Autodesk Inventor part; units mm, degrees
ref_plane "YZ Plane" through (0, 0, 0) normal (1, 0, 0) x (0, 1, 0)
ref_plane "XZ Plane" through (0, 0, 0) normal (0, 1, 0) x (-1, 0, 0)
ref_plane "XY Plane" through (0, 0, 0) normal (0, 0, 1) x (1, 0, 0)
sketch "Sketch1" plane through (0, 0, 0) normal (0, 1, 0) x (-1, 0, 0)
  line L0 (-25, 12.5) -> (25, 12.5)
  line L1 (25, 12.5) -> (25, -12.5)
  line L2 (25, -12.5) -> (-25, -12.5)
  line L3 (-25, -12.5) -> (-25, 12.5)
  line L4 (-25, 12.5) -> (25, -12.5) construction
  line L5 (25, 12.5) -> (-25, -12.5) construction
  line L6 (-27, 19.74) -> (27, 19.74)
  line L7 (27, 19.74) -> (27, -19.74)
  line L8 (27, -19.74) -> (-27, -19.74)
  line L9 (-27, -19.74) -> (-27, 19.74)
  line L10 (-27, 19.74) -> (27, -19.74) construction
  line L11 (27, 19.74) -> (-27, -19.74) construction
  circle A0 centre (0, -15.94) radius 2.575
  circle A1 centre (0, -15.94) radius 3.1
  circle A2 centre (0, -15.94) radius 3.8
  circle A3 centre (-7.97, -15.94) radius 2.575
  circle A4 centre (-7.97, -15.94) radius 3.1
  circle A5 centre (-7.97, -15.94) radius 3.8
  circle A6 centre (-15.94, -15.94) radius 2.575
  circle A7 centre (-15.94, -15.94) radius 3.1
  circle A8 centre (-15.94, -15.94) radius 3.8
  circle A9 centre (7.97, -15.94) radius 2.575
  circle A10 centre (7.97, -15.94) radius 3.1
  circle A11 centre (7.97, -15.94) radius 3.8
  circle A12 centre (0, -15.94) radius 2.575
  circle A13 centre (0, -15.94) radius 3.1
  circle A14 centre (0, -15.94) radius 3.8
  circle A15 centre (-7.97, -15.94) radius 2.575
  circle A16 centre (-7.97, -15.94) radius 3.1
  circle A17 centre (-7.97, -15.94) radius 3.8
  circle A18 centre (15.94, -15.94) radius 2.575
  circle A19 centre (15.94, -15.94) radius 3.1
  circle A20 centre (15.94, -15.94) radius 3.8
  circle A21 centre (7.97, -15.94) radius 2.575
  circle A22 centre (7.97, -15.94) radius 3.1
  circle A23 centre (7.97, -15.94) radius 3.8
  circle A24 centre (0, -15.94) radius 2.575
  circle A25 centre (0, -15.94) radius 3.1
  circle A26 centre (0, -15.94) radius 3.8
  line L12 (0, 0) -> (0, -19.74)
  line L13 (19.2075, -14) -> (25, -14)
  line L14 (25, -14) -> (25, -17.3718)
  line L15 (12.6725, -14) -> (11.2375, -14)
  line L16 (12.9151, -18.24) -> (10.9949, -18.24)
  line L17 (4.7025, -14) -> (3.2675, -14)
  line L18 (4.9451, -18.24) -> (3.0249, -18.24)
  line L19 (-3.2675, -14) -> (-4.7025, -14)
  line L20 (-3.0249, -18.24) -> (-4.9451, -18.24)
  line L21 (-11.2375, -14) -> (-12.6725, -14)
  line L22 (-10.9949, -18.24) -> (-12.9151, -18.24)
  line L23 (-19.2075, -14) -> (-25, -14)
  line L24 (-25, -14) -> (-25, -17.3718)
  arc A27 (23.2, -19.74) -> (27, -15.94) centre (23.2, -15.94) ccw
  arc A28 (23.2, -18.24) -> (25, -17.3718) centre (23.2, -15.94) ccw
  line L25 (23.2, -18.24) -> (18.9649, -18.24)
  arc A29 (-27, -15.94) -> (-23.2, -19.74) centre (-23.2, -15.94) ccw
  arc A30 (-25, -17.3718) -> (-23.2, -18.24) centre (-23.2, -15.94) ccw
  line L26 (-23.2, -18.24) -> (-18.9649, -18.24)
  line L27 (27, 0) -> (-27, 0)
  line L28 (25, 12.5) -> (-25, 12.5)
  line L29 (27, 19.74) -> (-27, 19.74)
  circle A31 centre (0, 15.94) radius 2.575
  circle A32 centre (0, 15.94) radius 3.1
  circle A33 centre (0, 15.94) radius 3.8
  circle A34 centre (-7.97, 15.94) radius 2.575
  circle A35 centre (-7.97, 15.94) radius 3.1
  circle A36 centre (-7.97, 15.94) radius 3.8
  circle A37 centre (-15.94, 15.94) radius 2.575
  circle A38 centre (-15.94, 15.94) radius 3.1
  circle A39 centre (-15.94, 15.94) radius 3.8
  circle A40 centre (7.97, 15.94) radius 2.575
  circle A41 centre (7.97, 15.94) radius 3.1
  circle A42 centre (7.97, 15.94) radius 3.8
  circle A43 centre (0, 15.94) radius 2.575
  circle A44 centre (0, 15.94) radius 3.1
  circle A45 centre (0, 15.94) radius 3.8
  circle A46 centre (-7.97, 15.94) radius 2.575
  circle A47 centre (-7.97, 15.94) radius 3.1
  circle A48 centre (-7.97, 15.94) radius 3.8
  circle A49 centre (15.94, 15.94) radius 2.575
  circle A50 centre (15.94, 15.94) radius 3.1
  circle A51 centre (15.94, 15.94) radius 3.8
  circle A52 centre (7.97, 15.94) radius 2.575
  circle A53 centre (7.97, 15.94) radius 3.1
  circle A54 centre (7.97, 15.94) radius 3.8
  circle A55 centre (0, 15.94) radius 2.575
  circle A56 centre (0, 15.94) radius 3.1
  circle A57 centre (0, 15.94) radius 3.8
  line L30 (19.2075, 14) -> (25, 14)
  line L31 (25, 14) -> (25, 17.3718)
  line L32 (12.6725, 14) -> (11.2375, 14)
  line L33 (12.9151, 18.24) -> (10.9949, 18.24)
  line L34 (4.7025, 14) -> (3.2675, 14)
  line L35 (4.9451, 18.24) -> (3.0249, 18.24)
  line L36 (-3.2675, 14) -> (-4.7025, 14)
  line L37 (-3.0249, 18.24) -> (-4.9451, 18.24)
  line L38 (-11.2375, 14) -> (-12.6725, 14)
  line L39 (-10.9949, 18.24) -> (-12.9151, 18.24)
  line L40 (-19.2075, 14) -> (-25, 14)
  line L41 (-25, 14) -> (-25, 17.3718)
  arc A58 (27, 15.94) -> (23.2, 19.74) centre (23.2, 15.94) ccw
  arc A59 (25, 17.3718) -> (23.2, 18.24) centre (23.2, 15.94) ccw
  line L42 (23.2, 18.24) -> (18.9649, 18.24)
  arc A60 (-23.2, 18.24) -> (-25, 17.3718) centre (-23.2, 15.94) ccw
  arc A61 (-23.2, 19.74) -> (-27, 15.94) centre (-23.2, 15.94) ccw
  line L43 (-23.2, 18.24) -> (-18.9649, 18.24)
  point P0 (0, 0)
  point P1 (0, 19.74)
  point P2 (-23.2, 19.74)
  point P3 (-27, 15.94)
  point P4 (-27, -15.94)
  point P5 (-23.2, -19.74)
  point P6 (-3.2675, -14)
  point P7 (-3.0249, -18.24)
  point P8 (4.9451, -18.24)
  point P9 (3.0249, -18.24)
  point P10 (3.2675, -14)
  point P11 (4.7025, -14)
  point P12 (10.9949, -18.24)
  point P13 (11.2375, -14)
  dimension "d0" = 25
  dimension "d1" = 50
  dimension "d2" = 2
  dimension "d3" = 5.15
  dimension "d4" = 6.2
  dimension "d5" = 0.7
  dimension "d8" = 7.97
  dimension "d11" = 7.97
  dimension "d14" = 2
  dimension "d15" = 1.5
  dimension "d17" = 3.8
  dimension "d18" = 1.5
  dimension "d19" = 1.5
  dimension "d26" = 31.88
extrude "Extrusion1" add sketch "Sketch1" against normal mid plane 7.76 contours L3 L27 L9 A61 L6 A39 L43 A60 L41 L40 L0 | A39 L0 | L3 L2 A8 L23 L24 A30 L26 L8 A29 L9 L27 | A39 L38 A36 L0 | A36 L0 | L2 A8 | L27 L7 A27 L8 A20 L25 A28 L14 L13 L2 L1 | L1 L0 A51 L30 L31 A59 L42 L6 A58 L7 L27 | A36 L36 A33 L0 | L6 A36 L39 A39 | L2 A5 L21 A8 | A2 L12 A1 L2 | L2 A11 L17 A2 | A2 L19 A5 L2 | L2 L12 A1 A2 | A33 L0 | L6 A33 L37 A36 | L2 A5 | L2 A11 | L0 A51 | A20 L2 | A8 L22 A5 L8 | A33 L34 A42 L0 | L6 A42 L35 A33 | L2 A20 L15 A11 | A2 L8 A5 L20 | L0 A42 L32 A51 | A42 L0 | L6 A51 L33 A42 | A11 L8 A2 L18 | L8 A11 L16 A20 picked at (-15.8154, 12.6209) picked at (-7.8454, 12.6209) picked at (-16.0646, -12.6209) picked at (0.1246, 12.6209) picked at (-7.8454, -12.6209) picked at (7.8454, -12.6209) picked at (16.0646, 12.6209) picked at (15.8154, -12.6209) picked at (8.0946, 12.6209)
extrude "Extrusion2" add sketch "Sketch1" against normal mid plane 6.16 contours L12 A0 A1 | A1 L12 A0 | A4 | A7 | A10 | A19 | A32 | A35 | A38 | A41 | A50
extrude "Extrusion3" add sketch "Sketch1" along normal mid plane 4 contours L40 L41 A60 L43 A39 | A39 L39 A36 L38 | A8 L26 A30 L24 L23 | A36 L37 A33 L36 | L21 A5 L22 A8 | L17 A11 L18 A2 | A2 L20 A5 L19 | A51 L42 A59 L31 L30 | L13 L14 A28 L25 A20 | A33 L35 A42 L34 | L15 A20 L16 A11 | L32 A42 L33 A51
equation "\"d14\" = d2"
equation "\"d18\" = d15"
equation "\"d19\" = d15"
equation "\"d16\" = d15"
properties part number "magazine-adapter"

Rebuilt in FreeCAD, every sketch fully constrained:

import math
import FreeCAD as App
import Part
import Sketcher

V = App.Vector
Q = App.Units.Quantity


def add_polygon(sketch, points):
    """Adds a closed chain of lines whose ends are joined by coincident constraints."""
    first, n = sketch.GeometryCount, len(points)
    for a, b in zip(points, points[1:] + points[:1]):
        sketch.addGeometry(Part.LineSegment(App.Vector(*a, 0), App.Vector(*b, 0)), False)
    for i in range(n):
        sketch.addConstraint(Sketcher.Constraint("Coincident", first + i, 2, first + (i + 1) % n, 1))

doc = App.newDocument("Part")
body = doc.addObject("PartDesign::Body", "Body")

# Sketch on XZ plane
sketch1 = body.newObject("Sketcher::SketchObject", "Sketch")
sketch1.AttachmentSupport = (doc.getObject("XZ_Plane"), [""])
sketch1.MapMode = "FlatFace"
sketch1.addGeometry(Part.LineSegment(V(27, 15.9, 0), V(27, -15.9, 0)), False)  # 0
sketch1.addGeometry(Part.ArcOfCircle(Part.Circle(V(23.2, -15.9, 0), V(0, 0, 1), 3.8), math.radians(-90), math.radians(0)), False)  # 1
sketch1.addGeometry(Part.LineSegment(V(23.2, -19.7, 0), V(-23.2, -19.7, 0)), False)  # 2
sketch1.addGeometry(Part.ArcOfCircle(Part.Circle(V(-23.2, -15.9, 0), V(0, 0, 1), 3.8), math.radians(180), math.radians(270)), False)  # 3
sketch1.addGeometry(Part.LineSegment(V(-27, -15.9, 0), V(-27, 15.9, 0)), False)  # 4
sketch1.addGeometry(Part.ArcOfCircle(Part.Circle(V(-23.2, 15.9, 0), V(0, 0, 1), 3.8), math.radians(90), math.radians(180)), False)  # 5
sketch1.addGeometry(Part.LineSegment(V(-23.2, 19.7, 0), V(23.2, 19.7, 0)), False)  # 6
sketch1.addGeometry(Part.ArcOfCircle(Part.Circle(V(23.2, 15.9, 0), V(0, 0, 1), 3.8), math.radians(0), math.radians(90)), False)  # 7
add_polygon(sketch1, [(25, 12.5), (-25, 12.5), (-25, -12.5), (25, -12.5)])  # lines 8-11
sketch1.addGeometry(Part.LineSegment(V(23.2, 18.2, 0), V(19, 18.2, 0)), False)  # 12
sketch1.addGeometry(Part.ArcOfCircle(Part.Circle(V(15.9, 15.9, 0), V(0, 0, 1), 3.8), math.radians(-31), math.radians(37)), False)  # 13
sketch1.addGeometry(Part.LineSegment(V(19.2, 14, 0), V(25, 14, 0)), False)  # 14
sketch1.addGeometry(Part.LineSegment(V(25, 14, 0), V(25, 17.4, 0)), False)  # 15
sketch1.addGeometry(Part.ArcOfCircle(Part.Circle(V(23.2, 15.9, 0), V(0, 0, 1), 2.3), math.radians(39), math.radians(90)), False)  # 16
sketch1.addGeometry(Part.LineSegment(V(25, -14, 0), V(19.2, -14, 0)), False)  # 17
sketch1.addGeometry(Part.ArcOfCircle(Part.Circle(V(15.9, -15.9, 0), V(0, 0, 1), 3.8), math.radians(-37), math.radians(31)), False)  # 18
sketch1.addGeometry(Part.LineSegment(V(19, -18.2, 0), V(23.2, -18.2, 0)), False)  # 19
sketch1.addGeometry(Part.ArcOfCircle(Part.Circle(V(23.2, -15.9, 0), V(0, 0, 1), 2.3), math.radians(-90), math.radians(-39)), False)  # 20
sketch1.addGeometry(Part.LineSegment(V(25, -17.4, 0), V(25, -14, 0)), False)  # 21
sketch1.addGeometry(Part.Circle(V(15.9, 15.9, 0), V(0, 0, 1), 3.1), False)  # 22
sketch1.addGeometry(Part.LineSegment(V(12.9, 18.2, 0), V(11, 18.2, 0)), False)  # 23
sketch1.addGeometry(Part.ArcOfCircle(Part.Circle(V(8, 15.9, 0), V(0, 0, 1), 3.8), math.radians(-31), math.radians(37)), False)  # 24
sketch1.addGeometry(Part.LineSegment(V(11.2, 14, 0), V(12.7, 14, 0)), False)  # 25
sketch1.addGeometry(Part.ArcOfCircle(Part.Circle(V(15.9, 15.9, 0), V(0, 0, 1), 3.8), math.radians(143), math.radians(211)), False)  # 26
sketch1.addGeometry(Part.LineSegment(V(12.7, -14, 0), V(11.2, -14, 0)), False)  # 27
sketch1.addGeometry(Part.ArcOfCircle(Part.Circle(V(8, -15.9, 0), V(0, 0, 1), 3.8), math.radians(-37), math.radians(31)), False)  # 28
sketch1.addGeometry(Part.LineSegment(V(11, -18.2, 0), V(12.9, -18.2, 0)), False)  # 29
sketch1.addGeometry(Part.ArcOfCircle(Part.Circle(V(15.9, -15.9, 0), V(0, 0, 1), 3.8), math.radians(149), math.radians(217)), False)  # 30
sketch1.addGeometry(Part.Circle(V(15.9, -15.9, 0), V(0, 0, 1), 3.1), False)  # 31
sketch1.addGeometry(Part.Circle(V(8, 15.9, 0), V(0, 0, 1), 3.1), False)  # 32
sketch1.addGeometry(Part.LineSegment(V(4.9, 18.2, 0), V(3, 18.2, 0)), False)  # 33
sketch1.addGeometry(Part.ArcOfCircle(Part.Circle(V(0, 15.9, 0), V(0, 0, 1), 3.8), math.radians(-31), math.radians(37)), False)  # 34
sketch1.addGeometry(Part.LineSegment(V(3.3, 14, 0), V(4.7, 14, 0)), False)  # 35
sketch1.addGeometry(Part.ArcOfCircle(Part.Circle(V(8, 15.9, 0), V(0, 0, 1), 3.8), math.radians(143), math.radians(211)), False)  # 36
sketch1.addGeometry(Part.LineSegment(V(4.7, -14, 0), V(3.3, -14, 0)), False)  # 37
sketch1.addGeometry(Part.ArcOfCircle(Part.Circle(V(0, -15.9, 0), V(0, 0, 1), 3.8), math.radians(-37), math.radians(31)), False)  # 38
sketch1.addGeometry(Part.LineSegment(V(3, -18.2, 0), V(4.9, -18.2, 0)), False)  # 39
sketch1.addGeometry(Part.ArcOfCircle(Part.Circle(V(8, -15.9, 0), V(0, 0, 1), 3.8), math.radians(149), math.radians(217)), False)  # 40
sketch1.addGeometry(Part.Circle(V(8, -15.9, 0), V(0, 0, 1), 3.1), False)  # 41
sketch1.addGeometry(Part.Circle(V(0, 15.9, 0), V(0, 0, 1), 3.1), False)  # 42
sketch1.addGeometry(Part.LineSegment(V(-3, 18.2, 0), V(-4.9, 18.2, 0)), False)  # 43
sketch1.addGeometry(Part.ArcOfCircle(Part.Circle(V(-8, 15.9, 0), V(0, 0, 1), 3.8), math.radians(-31), math.radians(37)), False)  # 44
sketch1.addGeometry(Part.LineSegment(V(-4.7, 14, 0), V(-3.3, 14, 0)), False)  # 45
sketch1.addGeometry(Part.ArcOfCircle(Part.Circle(V(0, 15.9, 0), V(0, 0, 1), 3.8), math.radians(143), math.radians(211)), False)  # 46
sketch1.addGeometry(Part.Circle(V(0, -15.9, 0), V(0, 0, 1), 3.1), False)  # 47
sketch1.addGeometry(Part.LineSegment(V(-3.3, -14, 0), V(-4.7, -14, 0)), False)  # 48
sketch1.addGeometry(Part.ArcOfCircle(Part.Circle(V(-8, -15.9, 0), V(0, 0, 1), 3.8), math.radians(-37), math.radians(31)), False)  # 49
sketch1.addGeometry(Part.LineSegment(V(-4.9, -18.2, 0), V(-3, -18.2, 0)), False)  # 50
sketch1.addGeometry(Part.ArcOfCircle(Part.Circle(V(0, -15.9, 0), V(0, 0, 1), 3.8), math.radians(149), math.radians(217)), False)  # 51
sketch1.addGeometry(Part.Circle(V(-8, 15.9, 0), V(0, 0, 1), 3.1), False)  # 52
sketch1.addGeometry(Part.LineSegment(V(-11, 18.2, 0), V(-12.9, 18.2, 0)), False)  # 53
sketch1.addGeometry(Part.ArcOfCircle(Part.Circle(V(-15.9, 15.9, 0), V(0, 0, 1), 3.8), math.radians(-31), math.radians(37)), False)  # 54
sketch1.addGeometry(Part.LineSegment(V(-12.7, 14, 0), V(-11.2, 14, 0)), False)  # 55
sketch1.addGeometry(Part.ArcOfCircle(Part.Circle(V(-8, 15.9, 0), V(0, 0, 1), 3.8), math.radians(143), math.radians(211)), False)  # 56
sketch1.addGeometry(Part.LineSegment(V(-11.2, -14, 0), V(-12.7, -14, 0)), False)  # 57
sketch1.addGeometry(Part.ArcOfCircle(Part.Circle(V(-15.9, -15.9, 0), V(0, 0, 1), 3.8), math.radians(-37), math.radians(31)), False)  # 58
sketch1.addGeometry(Part.LineSegment(V(-12.9, -18.2, 0), V(-11, -18.2, 0)), False)  # 59
sketch1.addGeometry(Part.ArcOfCircle(Part.Circle(V(-8, -15.9, 0), V(0, 0, 1), 3.8), math.radians(149), math.radians(217)), False)  # 60
sketch1.addGeometry(Part.Circle(V(-8, -15.9, 0), V(0, 0, 1), 3.1), False)  # 61
sketch1.addGeometry(Part.Circle(V(-15.9, 15.9, 0), V(0, 0, 1), 3.1), False)  # 62
sketch1.addGeometry(Part.LineSegment(V(-19, 18.2, 0), V(-23.2, 18.2, 0)), False)  # 63
sketch1.addGeometry(Part.ArcOfCircle(Part.Circle(V(-23.2, 15.9, 0), V(0, 0, 1), 2.3), math.radians(90), math.radians(141)), False)  # 64
sketch1.addGeometry(Part.LineSegment(V(-25, 17.4, 0), V(-25, 14, 0)), False)  # 65
sketch1.addGeometry(Part.LineSegment(V(-25, 14, 0), V(-19.2, 14, 0)), False)  # 66
sketch1.addGeometry(Part.ArcOfCircle(Part.Circle(V(-15.9, 15.9, 0), V(0, 0, 1), 3.8), math.radians(143), math.radians(211)), False)  # 67
sketch1.addGeometry(Part.LineSegment(V(-19.2, -14, 0), V(-25, -14, 0)), False)  # 68
sketch1.addGeometry(Part.LineSegment(V(-25, -14, 0), V(-25, -17.4, 0)), False)  # 69
sketch1.addGeometry(Part.ArcOfCircle(Part.Circle(V(-23.2, -15.9, 0), V(0, 0, 1), 2.3), math.radians(-141), math.radians(-90)), False)  # 70
sketch1.addGeometry(Part.LineSegment(V(-23.2, -18.2, 0), V(-19, -18.2, 0)), False)  # 71
sketch1.addGeometry(Part.ArcOfCircle(Part.Circle(V(-15.9, -15.9, 0), V(0, 0, 1), 3.8), math.radians(149), math.radians(217)), False)  # 72
sketch1.addGeometry(Part.Circle(V(-15.9, -15.9, 0), V(0, 0, 1), 3.1), False)  # 73
sketch1.addConstraint([
    Sketcher.Constraint("Tangent", 0, 2, 1, 2),
    Sketcher.Constraint("Tangent", 1, 1, 2, 1),
    Sketcher.Constraint("Tangent", 2, 2, 3, 2),
    Sketcher.Constraint("Tangent", 3, 1, 4, 1),
    Sketcher.Constraint("Tangent", 4, 2, 5, 2),
    Sketcher.Constraint("Tangent", 5, 1, 6, 1),
    Sketcher.Constraint("Tangent", 6, 2, 7, 2),
    Sketcher.Constraint("Tangent", 7, 1, 0, 1),
    Sketcher.Constraint("Coincident", 12, 2, 13, 2),
    Sketcher.Constraint("Coincident", 13, 1, 14, 1),
    Sketcher.Constraint("Coincident", 14, 2, 15, 1),
    Sketcher.Constraint("Coincident", 15, 2, 16, 1),
    Sketcher.Constraint("Tangent", 16, 2, 12, 1),
    Sketcher.Constraint("Coincident", 17, 2, 18, 2),
    Sketcher.Constraint("Coincident", 18, 1, 19, 1),
    Sketcher.Constraint("Tangent", 19, 2, 20, 1),
    Sketcher.Constraint("Coincident", 20, 2, 21, 1),
    Sketcher.Constraint("Coincident", 21, 2, 17, 1),
    Sketcher.Constraint("Coincident", 23, 2, 24, 2),
    Sketcher.Constraint("Coincident", 24, 1, 25, 1),
    Sketcher.Constraint("Coincident", 25, 2, 26, 2),
    Sketcher.Constraint("Coincident", 26, 1, 23, 1),
    Sketcher.Constraint("Coincident", 27, 2, 28, 2),
    Sketcher.Constraint("Coincident", 28, 1, 29, 1),
    Sketcher.Constraint("Coincident", 29, 2, 30, 2),
    Sketcher.Constraint("Coincident", 30, 1, 27, 1),
    Sketcher.Constraint("Coincident", 33, 2, 34, 2),
    Sketcher.Constraint("Coincident", 34, 1, 35, 1),
    Sketcher.Constraint("Coincident", 35, 2, 36, 2),
    Sketcher.Constraint("Coincident", 36, 1, 33, 1),
    Sketcher.Constraint("Coincident", 37, 2, 38, 2),
    Sketcher.Constraint("Coincident", 38, 1, 39, 1),
    Sketcher.Constraint("Coincident", 39, 2, 40, 2),
    Sketcher.Constraint("Coincident", 40, 1, 37, 1),
    Sketcher.Constraint("Coincident", 43, 2, 44, 2),
    Sketcher.Constraint("Coincident", 44, 1, 45, 1),
    Sketcher.Constraint("Coincident", 45, 2, 46, 2),
    Sketcher.Constraint("Coincident", 46, 1, 43, 1),
    Sketcher.Constraint("Coincident", 48, 2, 49, 2),
    Sketcher.Constraint("Coincident", 49, 1, 50, 1),
    Sketcher.Constraint("Coincident", 50, 2, 51, 2),
    Sketcher.Constraint("Coincident", 51, 1, 48, 1),
    Sketcher.Constraint("Coincident", 53, 2, 54, 2),
    Sketcher.Constraint("Coincident", 54, 1, 55, 1),
    Sketcher.Constraint("Coincident", 55, 2, 56, 2),
    Sketcher.Constraint("Coincident", 56, 1, 53, 1),
    Sketcher.Constraint("Coincident", 57, 2, 58, 2),
    Sketcher.Constraint("Coincident", 58, 1, 59, 1),
    Sketcher.Constraint("Coincident", 59, 2, 60, 2),
    Sketcher.Constraint("Coincident", 60, 1, 57, 1),
    Sketcher.Constraint("Tangent", 63, 2, 64, 1),
    Sketcher.Constraint("Coincident", 64, 2, 65, 1),
    Sketcher.Constraint("Coincident", 65, 2, 66, 1),
    Sketcher.Constraint("Coincident", 66, 2, 67, 2),
    Sketcher.Constraint("Coincident", 67, 1, 63, 1),
    Sketcher.Constraint("Coincident", 68, 2, 69, 1),
    Sketcher.Constraint("Coincident", 69, 2, 70, 1),
    Sketcher.Constraint("Tangent", 70, 2, 71, 1),
    Sketcher.Constraint("Coincident", 71, 2, 72, 2),
    Sketcher.Constraint("Coincident", 72, 1, 68, 1),
    Sketcher.Constraint("Vertical", 0),
    Sketcher.Constraint("Horizontal", 2),
    Sketcher.Constraint("Vertical", 4),
    Sketcher.Constraint("Horizontal", 6),
    Sketcher.Constraint("Horizontal", 8),
    Sketcher.Constraint("Vertical", 9),
    Sketcher.Constraint("Horizontal", 10),
    Sketcher.Constraint("Vertical", 11),
    Sketcher.Constraint("Horizontal", 12),
    Sketcher.Constraint("Horizontal", 14),
    Sketcher.Constraint("Vertical", 15),
    Sketcher.Constraint("Horizontal", 17),
    Sketcher.Constraint("Horizontal", 19),
    Sketcher.Constraint("Vertical", 21),
    Sketcher.Constraint("Horizontal", 23),
    Sketcher.Constraint("Horizontal", 25),
    Sketcher.Constraint("Horizontal", 27),
    Sketcher.Constraint("Horizontal", 29),
    Sketcher.Constraint("Horizontal", 33),
    Sketcher.Constraint("Horizontal", 35),
    Sketcher.Constraint("Horizontal", 37),
    Sketcher.Constraint("Horizontal", 39),
    Sketcher.Constraint("Horizontal", 43),
    Sketcher.Constraint("Horizontal", 45),
    Sketcher.Constraint("Horizontal", 48),
    Sketcher.Constraint("Horizontal", 50),
    Sketcher.Constraint("Horizontal", 53),
    Sketcher.Constraint("Horizontal", 55),
    Sketcher.Constraint("Horizontal", 57),
    Sketcher.Constraint("Horizontal", 59),
    Sketcher.Constraint("Horizontal", 63),
    Sketcher.Constraint("Vertical", 65),
    Sketcher.Constraint("Horizontal", 66),
    Sketcher.Constraint("Horizontal", 68),
    Sketcher.Constraint("Vertical", 69),
    Sketcher.Constraint("Horizontal", 71),
    Sketcher.Constraint("Coincident", 16, 3, 7, 3),
    Sketcher.Constraint("Coincident", 20, 3, 1, 3),
    Sketcher.Constraint("Coincident", 22, 3, 13, 3),
    Sketcher.Constraint("Coincident", 26, 3, 13, 3),
    Sketcher.Constraint("Coincident", 30, 3, 18, 3),
    Sketcher.Constraint("Coincident", 31, 3, 18, 3),
    Sketcher.Constraint("Coincident", 32, 3, 24, 3),
    Sketcher.Constraint("Coincident", 36, 3, 24, 3),
    Sketcher.Constraint("Coincident", 40, 3, 28, 3),
    Sketcher.Constraint("Coincident", 41, 3, 28, 3),
    Sketcher.Constraint("Coincident", 42, 3, 34, 3),
    Sketcher.Constraint("Coincident", 46, 3, 34, 3),
    Sketcher.Constraint("Coincident", 47, 3, 38, 3),
    Sketcher.Constraint("Coincident", 51, 3, 38, 3),
    Sketcher.Constraint("Coincident", 52, 3, 44, 3),
    Sketcher.Constraint("Coincident", 56, 3, 44, 3),
    Sketcher.Constraint("Coincident", 60, 3, 49, 3),
    Sketcher.Constraint("Coincident", 61, 3, 49, 3),
    Sketcher.Constraint("Coincident", 62, 3, 54, 3),
    Sketcher.Constraint("Coincident", 64, 3, 5, 3),
    Sketcher.Constraint("Coincident", 67, 3, 54, 3),
    Sketcher.Constraint("Coincident", 70, 3, 3, 3),
    Sketcher.Constraint("Coincident", 72, 3, 58, 3),
    Sketcher.Constraint("Coincident", 73, 3, 58, 3),
    Sketcher.Constraint("Equal", 1, 3),
    Sketcher.Constraint("Equal", 3, 5),
    Sketcher.Constraint("Equal", 5, 7),
    Sketcher.Constraint("Equal", 7, 13),
    Sketcher.Constraint("Equal", 13, 18),
    Sketcher.Constraint("Equal", 16, 20),
    Sketcher.Constraint("Equal", 18, 24),
    Sketcher.Constraint("Equal", 24, 26),
    Sketcher.Constraint("Equal", 26, 28),
    Sketcher.Constraint("Equal", 28, 30),
    Sketcher.Constraint("Equal", 22, 31),
    Sketcher.Constraint("Equal", 31, 32),
    Sketcher.Constraint("Equal", 30, 34),
    Sketcher.Constraint("Equal", 34, 36),
    Sketcher.Constraint("Equal", 36, 38),
    Sketcher.Constraint("Equal", 38, 40),
    Sketcher.Constraint("Equal", 32, 41),
    Sketcher.Constraint("Equal", 41, 42),
    Sketcher.Constraint("Equal", 40, 44),
    Sketcher.Constraint("Equal", 44, 46),
    Sketcher.Constraint("Equal", 42, 47),
    Sketcher.Constraint("Equal", 46, 49),
    Sketcher.Constraint("Equal", 49, 51),
    Sketcher.Constraint("Equal", 47, 52),
    Sketcher.Constraint("Equal", 51, 54),
    Sketcher.Constraint("Equal", 54, 56),
    Sketcher.Constraint("Equal", 56, 58),
    Sketcher.Constraint("Equal", 58, 60),
    Sketcher.Constraint("Equal", 52, 61),
    Sketcher.Constraint("Equal", 61, 62),
    Sketcher.Constraint("Equal", 20, 64),
    Sketcher.Constraint("Equal", 60, 67),
    Sketcher.Constraint("Equal", 64, 70),
    Sketcher.Constraint("Equal", 67, 72),
    Sketcher.Constraint("Equal", 62, 73),
    Sketcher.Constraint("Symmetric", 1, 3, 5, 3, -1, 1),
    Sketcher.Constraint("Symmetric", 34, 3, 38, 3, -1, 1),
    Sketcher.Constraint("Symmetric", 28, 3, 44, 3, -1, 1),
    Sketcher.Constraint("Symmetric", 24, 3, 49, 3, -1, 1),
    Sketcher.Constraint("Symmetric", 18, 3, 54, 3, -1, 1),
    Sketcher.Constraint("Symmetric", 13, 3, 58, 3, -1, 1),
    Sketcher.Constraint("Symmetric", 8, 2, 10, 2, -1, 1),
    Sketcher.Constraint("Symmetric", 21, 2, 65, 2, -1, 1),
    Sketcher.Constraint("Symmetric", 14, 2, 68, 2, -1, 1),
    Sketcher.Constraint("Symmetric", 24, 3, 44, 3, -2),
    Sketcher.Constraint("Symmetric", 13, 3, 54, 3, -2),
    Sketcher.Constraint("Symmetric", 34, 1, 45, 2, -2),
    Sketcher.Constraint("Symmetric", 14, 2, 65, 2, -2),
    Sketcher.Constraint("Horizontal", 7, 3, 13, 3),
    Sketcher.Constraint("Horizontal", 22, 3, 24, 3),
    Sketcher.Constraint("Horizontal", 32, 3, 34, 3),
    Sketcher.Constraint("Horizontal", 16, 2, 23, 2),
    Sketcher.Constraint("Horizontal", 14, 2, 24, 1),
    Sketcher.Constraint("Horizontal", 21, 2, 27, 2),
    Sketcher.Constraint("Horizontal", 19, 2, 28, 1),
    Sketcher.Constraint("Horizontal", 26, 1, 33, 2),
    Sketcher.Constraint("Horizontal", 25, 2, 34, 1),
    Sketcher.Constraint("Horizontal", 30, 1, 37, 2),
    Sketcher.Constraint("Horizontal", 29, 2, 38, 1),
    Sketcher.Constraint("Horizontal", 36, 1, 43, 2),
    Sketcher.Constraint("Horizontal", 40, 1, 48, 2),
    Sketcher.Constraint("Horizontal", 39, 2, 49, 1),
    Sketcher.Constraint("Horizontal", 46, 1, 53, 2),
    Sketcher.Constraint("Horizontal", 45, 2, 54, 1),
    Sketcher.Constraint("Horizontal", 51, 1, 57, 2),
    Sketcher.Constraint("Horizontal", 50, 2, 58, 1),
    Sketcher.Constraint("Vertical", 11, 2, 14, 2),
    Sketcher.Constraint("Equal", 29, 33),
    Sketcher.Constraint("Diameter", 22, Q("6.2 mm")),
    Sketcher.Constraint("Radius", 1, Q("3.8 mm")),
    Sketcher.Constraint("DistanceX", 8, 2, 8, 1, Q("50 mm")),
    Sketcher.Constraint("DistanceY", 9, 2, 9, 1, Q("25 mm")),
    Sketcher.Constraint("DistanceY", 0, 2, 0, 1, Q("31.88 mm")),
    Sketcher.Constraint("Radius", 16, Q("2.3 mm")),
    Sketcher.Constraint("DistanceX", -1, 1, 24, 3, Q("7.97 mm")),
    Sketcher.Constraint("DistanceX", 2, 2, 2, 1, Q("46.4 mm")),
    Sketcher.Constraint("DistanceY", -1, 1, 13, 1, Q("14 mm")),
])
pad1 = body.newObject("PartDesign::Pad", "Pad")
pad1.Profile = sketch1
pad1.Length = 7.76
pad1.Midplane = True

# Sketch on XZ plane
sketch2 = body.newObject("Sketcher::SketchObject", "Sketch001")
sketch2.AttachmentSupport = (doc.getObject("XZ_Plane"), [""])
sketch2.MapMode = "FlatFace"
sketch2.addGeometry([
    Part.Circle(V(0, -15.9, 0), V(0, 0, 1), 3.1),  # 0
    Part.Circle(V(0, -15.9, 0), V(0, 0, 1), 2.6),  # 1
    Part.Circle(V(8, -15.9, 0), V(0, 0, 1), 3.1),  # 2
    Part.Circle(V(8, -15.9, 0), V(0, 0, 1), 2.6),  # 3
    Part.Circle(V(15.9, -15.9, 0), V(0, 0, 1), 3.1),  # 4
    Part.Circle(V(15.9, -15.9, 0), V(0, 0, 1), 2.6),  # 5
    Part.Circle(V(-8, -15.9, 0), V(0, 0, 1), 3.1),  # 6
    Part.Circle(V(-8, -15.9, 0), V(0, 0, 1), 2.6),  # 7
    Part.Circle(V(-15.9, -15.9, 0), V(0, 0, 1), 3.1),  # 8
    Part.Circle(V(-15.9, -15.9, 0), V(0, 0, 1), 2.6),  # 9
    Part.Circle(V(0, 15.9, 0), V(0, 0, 1), 3.1),  # 10
    Part.Circle(V(0, 15.9, 0), V(0, 0, 1), 2.6),  # 11
    Part.Circle(V(8, 15.9, 0), V(0, 0, 1), 3.1),  # 12
    Part.Circle(V(8, 15.9, 0), V(0, 0, 1), 2.6),  # 13
    Part.Circle(V(15.9, 15.9, 0), V(0, 0, 1), 3.1),  # 14
    Part.Circle(V(15.9, 15.9, 0), V(0, 0, 1), 2.6),  # 15
    Part.Circle(V(-8, 15.9, 0), V(0, 0, 1), 3.1),  # 16
    Part.Circle(V(-8, 15.9, 0), V(0, 0, 1), 2.6),  # 17
    Part.Circle(V(-15.9, 15.9, 0), V(0, 0, 1), 3.1),  # 18
    Part.Circle(V(-15.9, 15.9, 0), V(0, 0, 1), 2.6),  # 19
], False)
sketch2.addConstraint([
    Sketcher.Constraint("Coincident", 1, 3, 0, 3),
    Sketcher.Constraint("Coincident", 3, 3, 2, 3),
    Sketcher.Constraint("Coincident", 5, 3, 4, 3),
    Sketcher.Constraint("Coincident", 7, 3, 6, 3),
    Sketcher.Constraint("Coincident", 9, 3, 8, 3),
    Sketcher.Constraint("Coincident", 11, 3, 10, 3),
    Sketcher.Constraint("Coincident", 13, 3, 12, 3),
    Sketcher.Constraint("Coincident", 15, 3, 14, 3),
    Sketcher.Constraint("Coincident", 17, 3, 16, 3),
    Sketcher.Constraint("Coincident", 19, 3, 18, 3),
    Sketcher.Constraint("Equal", 0, 2),
    Sketcher.Constraint("Equal", 1, 3),
    Sketcher.Constraint("Equal", 2, 4),
    Sketcher.Constraint("Equal", 3, 5),
    Sketcher.Constraint("Equal", 4, 6),
    Sketcher.Constraint("Equal", 5, 7),
    Sketcher.Constraint("Equal", 6, 8),
    Sketcher.Constraint("Equal", 7, 9),
    Sketcher.Constraint("Equal", 8, 10),
    Sketcher.Constraint("Equal", 9, 11),
    Sketcher.Constraint("Equal", 10, 12),
    Sketcher.Constraint("Equal", 11, 13),
    Sketcher.Constraint("Equal", 12, 14),
    Sketcher.Constraint("Equal", 13, 15),
    Sketcher.Constraint("Equal", 14, 16),
    Sketcher.Constraint("Equal", 15, 17),
    Sketcher.Constraint("Equal", 16, 18),
    Sketcher.Constraint("Equal", 17, 19),
    Sketcher.Constraint("Symmetric", 0, 3, 10, 3, -1, 1),
    Sketcher.Constraint("Symmetric", 6, 3, 12, 3, -1, 1),
    Sketcher.Constraint("Symmetric", 8, 3, 14, 3, -1, 1),
    Sketcher.Constraint("Symmetric", 2, 3, 16, 3, -1, 1),
    Sketcher.Constraint("Symmetric", 4, 3, 18, 3, -1, 1),
    Sketcher.Constraint("Symmetric", 2, 3, 6, 3, -2),
    Sketcher.Constraint("Symmetric", 4, 3, 8, 3, -2),
    Sketcher.Constraint("PointOnObject", 0, 3, -2),
    Sketcher.Constraint("Horizontal", 1, 3, 2, 3),
    Sketcher.Constraint("Horizontal", 3, 3, 4, 3),
    Sketcher.Constraint("Diameter", 0, Q("6.2 mm")),
    Sketcher.Constraint("Diameter", 1, Q("5.15 mm")),
    Sketcher.Constraint("DistanceX", -1, 1, 2, 3, Q("7.97 mm")),
    Sketcher.Constraint("DistanceX", 2, 3, 4, 3, Q("7.97 mm")),
    Sketcher.Constraint("DistanceY", 0, 3, 10, 3, Q("31.88 mm")),
])
pad2 = body.newObject("PartDesign::Pad", "Pad001")
pad2.Profile = sketch2
pad2.Length = 6.16
pad2.Midplane = True

# Sketch on XZ plane
sketch3 = body.newObject("Sketcher::SketchObject", "Sketch002")
sketch3.AttachmentSupport = (doc.getObject("XZ_Plane"), [""])
sketch3.MapMode = "FlatFace"
sketch3.addGeometry([
    Part.LineSegment(V(25, 14, 0), V(19.2, 14, 0)),  # 0
    Part.ArcOfCircle(Part.Circle(V(15.9, 15.9, 0), V(0, 0, 1), 3.8), math.radians(-31), math.radians(37)),  # 1
    Part.LineSegment(V(19, 18.2, 0), V(23.2, 18.2, 0)),  # 2
    Part.ArcOfCircle(Part.Circle(V(23.2, 15.9, 0), V(0, 0, 1), 2.3), math.radians(39), math.radians(90)),  # 3
    Part.LineSegment(V(25, 17.4, 0), V(25, 14, 0)),  # 4
    Part.ArcOfCircle(Part.Circle(V(15.9, 15.9, 0), V(0, 0, 1), 3.8), math.radians(143), math.radians(211)),  # 5
    Part.LineSegment(V(12.7, 14, 0), V(11.2, 14, 0)),  # 6
    Part.ArcOfCircle(Part.Circle(V(8, 15.9, 0), V(0, 0, 1), 3.8), math.radians(-31), math.radians(37)),  # 7
    Part.LineSegment(V(11, 18.2, 0), V(12.9, 18.2, 0)),  # 8
    Part.ArcOfCircle(Part.Circle(V(15.9, -15.9, 0), V(0, 0, 1), 3.8), math.radians(-37), math.radians(31)),  # 9
    Part.LineSegment(V(19.2, -14, 0), V(25, -14, 0)),  # 10
    Part.LineSegment(V(25, -14, 0), V(25, -17.4, 0)),  # 11
    Part.ArcOfCircle(Part.Circle(V(23.2, -15.9, 0), V(0, 0, 1), 2.3), math.radians(-90), math.radians(-39)),  # 12
    Part.LineSegment(V(23.2, -18.2, 0), V(19, -18.2, 0)),  # 13
    Part.ArcOfCircle(Part.Circle(V(8, 15.9, 0), V(0, 0, 1), 3.8), math.radians(143), math.radians(211)),  # 14
    Part.LineSegment(V(4.7, 14, 0), V(3.3, 14, 0)),  # 15
    Part.ArcOfCircle(Part.Circle(V(0, 15.9, 0), V(0, 0, 1), 3.8), math.radians(-31), math.radians(37)),  # 16
    Part.LineSegment(V(3, 18.2, 0), V(4.9, 18.2, 0)),  # 17
    Part.LineSegment(V(11.2, -14, 0), V(12.7, -14, 0)),  # 18
    Part.ArcOfCircle(Part.Circle(V(15.9, -15.9, 0), V(0, 0, 1), 3.8), math.radians(149), math.radians(217)),  # 19
    Part.LineSegment(V(12.9, -18.2, 0), V(11, -18.2, 0)),  # 20
    Part.ArcOfCircle(Part.Circle(V(8, -15.9, 0), V(0, 0, 1), 3.8), math.radians(-37), math.radians(31)),  # 21
    Part.LineSegment(V(-4.7, -14, 0), V(-3.3, -14, 0)),  # 22
    Part.ArcOfCircle(Part.Circle(V(0, -15.9, 0), V(0, 0, 1), 3.8), math.radians(149), math.radians(217)),  # 23
    Part.LineSegment(V(-3, -18.2, 0), V(-4.9, -18.2, 0)),  # 24
    Part.ArcOfCircle(Part.Circle(V(-8, -15.9, 0), V(0, 0, 1), 3.8), math.radians(-37), math.radians(31)),  # 25
    Part.ArcOfCircle(Part.Circle(V(0, -15.9, 0), V(0, 0, 1), 3.8), math.radians(-37), math.radians(31)),  # 26
    Part.LineSegment(V(3.3, -14, 0), V(4.7, -14, 0)),  # 27
    Part.ArcOfCircle(Part.Circle(V(8, -15.9, 0), V(0, 0, 1), 3.8), math.radians(149), math.radians(217)),  # 28
    Part.LineSegment(V(4.9, -18.2, 0), V(3, -18.2, 0)),  # 29
    Part.ArcOfCircle(Part.Circle(V(-15.9, 15.9, 0), V(0, 0, 1), 3.8), math.radians(143), math.radians(211)),  # 30
    Part.LineSegment(V(-19.2, 14, 0), V(-25, 14, 0)),  # 31
    Part.LineSegment(V(-25, 14, 0), V(-25, 17.4, 0)),  # 32
    Part.ArcOfCircle(Part.Circle(V(-23.2, 15.9, 0), V(0, 0, 1), 2.3), math.radians(90), math.radians(141)),  # 33
    Part.LineSegment(V(-23.2, 18.2, 0), V(-19, 18.2, 0)),  # 34
    Part.LineSegment(V(-25, -14, 0), V(-19.2, -14, 0)),  # 35
    Part.ArcOfCircle(Part.Circle(V(-15.9, -15.9, 0), V(0, 0, 1), 3.8), math.radians(149), math.radians(217)),  # 36
    Part.LineSegment(V(-19, -18.2, 0), V(-23.2, -18.2, 0)),  # 37
    Part.ArcOfCircle(Part.Circle(V(-23.2, -15.9, 0), V(0, 0, 1), 2.3), math.radians(-141), math.radians(-90)),  # 38
    Part.LineSegment(V(-25, -17.4, 0), V(-25, -14, 0)),  # 39
    Part.ArcOfCircle(Part.Circle(V(0, 15.9, 0), V(0, 0, 1), 3.8), math.radians(143), math.radians(211)),  # 40
    Part.LineSegment(V(-3.3, 14, 0), V(-4.7, 14, 0)),  # 41
    Part.ArcOfCircle(Part.Circle(V(-8, 15.9, 0), V(0, 0, 1), 3.8), math.radians(-31), math.radians(37)),  # 42
    Part.LineSegment(V(-4.9, 18.2, 0), V(-3, 18.2, 0)),  # 43
    Part.LineSegment(V(-12.7, -14, 0), V(-11.2, -14, 0)),  # 44
    Part.ArcOfCircle(Part.Circle(V(-8, -15.9, 0), V(0, 0, 1), 3.8), math.radians(149), math.radians(217)),  # 45
    Part.LineSegment(V(-11, -18.2, 0), V(-12.9, -18.2, 0)),  # 46
    Part.ArcOfCircle(Part.Circle(V(-15.9, -15.9, 0), V(0, 0, 1), 3.8), math.radians(-37), math.radians(31)),  # 47
    Part.LineSegment(V(-11.2, 14, 0), V(-12.7, 14, 0)),  # 48
    Part.ArcOfCircle(Part.Circle(V(-15.9, 15.9, 0), V(0, 0, 1), 3.8), math.radians(-31), math.radians(37)),  # 49
    Part.LineSegment(V(-12.9, 18.2, 0), V(-11, 18.2, 0)),  # 50
    Part.ArcOfCircle(Part.Circle(V(-8, 15.9, 0), V(0, 0, 1), 3.8), math.radians(143), math.radians(211)),  # 51
], False)
sketch3.addConstraint([
    Sketcher.Constraint("Coincident", 0, 2, 1, 1),
    Sketcher.Constraint("Coincident", 1, 2, 2, 1),
    Sketcher.Constraint("Tangent", 2, 2, 3, 2),
    Sketcher.Constraint("Coincident", 3, 1, 4, 1),
    Sketcher.Constraint("Coincident", 4, 2, 0, 1),
    Sketcher.Constraint("Coincident", 5, 2, 6, 1),
    Sketcher.Constraint("Coincident", 6, 2, 7, 1),
    Sketcher.Constraint("Coincident", 7, 2, 8, 1),
    Sketcher.Constraint("Coincident", 8, 2, 5, 1),
    Sketcher.Constraint("Coincident", 9, 2, 10, 1),
    Sketcher.Constraint("Coincident", 10, 2, 11, 1),
    Sketcher.Constraint("Coincident", 11, 2, 12, 2),
    Sketcher.Constraint("Tangent", 12, 1, 13, 1),
    Sketcher.Constraint("Coincident", 13, 2, 9, 1),
    Sketcher.Constraint("Coincident", 14, 2, 15, 1),
    Sketcher.Constraint("Coincident", 15, 2, 16, 1),
    Sketcher.Constraint("Coincident", 16, 2, 17, 1),
    Sketcher.Constraint("Coincident", 17, 2, 14, 1),
    Sketcher.Constraint("Coincident", 18, 2, 19, 1),
    Sketcher.Constraint("Coincident", 19, 2, 20, 1),
    Sketcher.Constraint("Coincident", 20, 2, 21, 1),
    Sketcher.Constraint("Coincident", 21, 2, 18, 1),
    Sketcher.Constraint("Coincident", 22, 2, 23, 1),
    Sketcher.Constraint("Coincident", 23, 2, 24, 1),
    Sketcher.Constraint("Coincident", 24, 2, 25, 1),
    Sketcher.Constraint("Coincident", 25, 2, 22, 1),
    Sketcher.Constraint("Coincident", 26, 2, 27, 1),
    Sketcher.Constraint("Coincident", 27, 2, 28, 1),
    Sketcher.Constraint("Coincident", 28, 2, 29, 1),
    Sketcher.Constraint("Coincident", 29, 2, 26, 1),
    Sketcher.Constraint("Coincident", 30, 2, 31, 1),
    Sketcher.Constraint("Coincident", 31, 2, 32, 1),
    Sketcher.Constraint("Coincident", 32, 2, 33, 2),
    Sketcher.Constraint("Tangent", 33, 1, 34, 1),
    Sketcher.Constraint("Coincident", 34, 2, 30, 1),
    Sketcher.Constraint("Coincident", 35, 2, 36, 1),
    Sketcher.Constraint("Coincident", 36, 2, 37, 1),
    Sketcher.Constraint("Tangent", 37, 2, 38, 2),
    Sketcher.Constraint("Coincident", 38, 1, 39, 1),
    Sketcher.Constraint("Coincident", 39, 2, 35, 1),
    Sketcher.Constraint("Coincident", 40, 2, 41, 1),
    Sketcher.Constraint("Coincident", 41, 2, 42, 1),
    Sketcher.Constraint("Coincident", 42, 2, 43, 1),
    Sketcher.Constraint("Coincident", 43, 2, 40, 1),
    Sketcher.Constraint("Coincident", 44, 2, 45, 1),
    Sketcher.Constraint("Coincident", 45, 2, 46, 1),
    Sketcher.Constraint("Coincident", 46, 2, 47, 1),
    Sketcher.Constraint("Coincident", 47, 2, 44, 1),
    Sketcher.Constraint("Coincident", 48, 2, 49, 1),
    Sketcher.Constraint("Coincident", 49, 2, 50, 1),
    Sketcher.Constraint("Coincident", 50, 2, 51, 1),
    Sketcher.Constraint("Coincident", 51, 2, 48, 1),
    Sketcher.Constraint("Horizontal", 0),
    Sketcher.Constraint("Horizontal", 2),
    Sketcher.Constraint("Vertical", 4),
    Sketcher.Constraint("Horizontal", 6),
    Sketcher.Constraint("Horizontal", 8),
    Sketcher.Constraint("Horizontal", 10),
    Sketcher.Constraint("Vertical", 11),
    Sketcher.Constraint("Horizontal", 13),
    Sketcher.Constraint("Horizontal", 15),
    Sketcher.Constraint("Horizontal", 17),
    Sketcher.Constraint("Horizontal", 18),
    Sketcher.Constraint("Horizontal", 20),
    Sketcher.Constraint("Horizontal", 22),
    Sketcher.Constraint("Horizontal", 24),
    Sketcher.Constraint("Horizontal", 27),
    Sketcher.Constraint("Horizontal", 29),
    Sketcher.Constraint("Horizontal", 31),
    Sketcher.Constraint("Vertical", 32),
    Sketcher.Constraint("Horizontal", 34),
    Sketcher.Constraint("Horizontal", 35),
    Sketcher.Constraint("Horizontal", 37),
    Sketcher.Constraint("Vertical", 39),
    Sketcher.Constraint("Horizontal", 41),
    Sketcher.Constraint("Horizontal", 43),
    Sketcher.Constraint("Horizontal", 44),
    Sketcher.Constraint("Horizontal", 46),
    Sketcher.Constraint("Horizontal", 48),
    Sketcher.Constraint("Horizontal", 50),
    Sketcher.Constraint("Coincident", 5, 3, 1, 3),
    Sketcher.Constraint("Coincident", 14, 3, 7, 3),
    Sketcher.Constraint("Coincident", 19, 3, 9, 3),
    Sketcher.Constraint("Coincident", 26, 3, 23, 3),
    Sketcher.Constraint("Coincident", 28, 3, 21, 3),
    Sketcher.Constraint("Coincident", 40, 3, 16, 3),
    Sketcher.Constraint("Coincident", 45, 3, 25, 3),
    Sketcher.Constraint("Coincident", 47, 3, 36, 3),
    Sketcher.Constraint("Coincident", 49, 3, 30, 3),
    Sketcher.Constraint("Coincident", 51, 3, 42, 3),
    Sketcher.Constraint("Equal", 1, 5),
    Sketcher.Constraint("Equal", 5, 7),
    Sketcher.Constraint("Equal", 7, 9),
    Sketcher.Constraint("Equal", 3, 12),
    Sketcher.Constraint("Equal", 9, 14),
    Sketcher.Constraint("Equal", 14, 16),
    Sketcher.Constraint("Equal", 16, 19),
    Sketcher.Constraint("Equal", 19, 21),
    Sketcher.Constraint("Equal", 21, 23),
    Sketcher.Constraint("Equal", 23, 25),
    Sketcher.Constraint("Equal", 25, 26),
    Sketcher.Constraint("Equal", 26, 28),
    Sketcher.Constraint("Equal", 28, 30),
    Sketcher.Constraint("Equal", 12, 33),
    Sketcher.Constraint("Equal", 30, 36),
    Sketcher.Constraint("Equal", 33, 38),
    Sketcher.Constraint("Equal", 36, 40),
    Sketcher.Constraint("Equal", 40, 42),
    Sketcher.Constraint("Equal", 42, 45),
    Sketcher.Constraint("Equal", 45, 47),
    Sketcher.Constraint("Equal", 47, 49),
    Sketcher.Constraint("Equal", 49, 51),
    Sketcher.Constraint("Symmetric", 16, 3, 23, 3, -1, 1),
    Sketcher.Constraint("Symmetric", 7, 3, 25, 3, -1, 1),
    Sketcher.Constraint("Symmetric", 9, 3, 30, 3, -1, 1),
    Sketcher.Constraint("Symmetric", 12, 3, 33, 3, -1, 1),
    Sketcher.Constraint("Symmetric", 1, 3, 36, 3, -1, 1),
    Sketcher.Constraint("Symmetric", 3, 3, 38, 3, -1, 1),
    Sketcher.Constraint("Symmetric", 21, 3, 42, 3, -1, 1),
    Sketcher.Constraint("Symmetric", 10, 2, 31, 2, -1, 1),
    Sketcher.Constraint("Symmetric", 4, 2, 39, 2, -1, 1),
    Sketcher.Constraint("Symmetric", 21, 3, 25, 3, -2),
    Sketcher.Constraint("Symmetric", 1, 3, 30, 3, -2),
    Sketcher.Constraint("Symmetric", 3, 3, 33, 3, -2),
    Sketcher.Constraint("Symmetric", 22, 2, 26, 2, -2),
    Sketcher.Constraint("Symmetric", 4, 2, 31, 2, -2),
    Sketcher.Constraint("Horizontal", 1, 3, 3, 3),
    Sketcher.Constraint("Horizontal", 5, 3, 7, 3),
    Sketcher.Constraint("Horizontal", 14, 3, 16, 3),
    Sketcher.Constraint("Horizontal", 4, 2, 5, 2),
    Sketcher.Constraint("Horizontal", 2, 2, 7, 2),
    Sketcher.Constraint("Horizontal", 6, 2, 14, 2),
    Sketcher.Constraint("Horizontal", 8, 2, 16, 2),
    Sketcher.Constraint("Horizontal", 10, 2, 18, 2),
    Sketcher.Constraint("Horizontal", 13, 2, 19, 2),
    Sketcher.Constraint("Horizontal", 21, 2, 22, 2),
    Sketcher.Constraint("Horizontal", 20, 2, 23, 2),
    Sketcher.Constraint("Horizontal", 24, 2, 28, 2),
    Sketcher.Constraint("Horizontal", 31, 2, 40, 2),
    Sketcher.Constraint("Horizontal", 34, 2, 42, 2),
    Sketcher.Constraint("Horizontal", 39, 2, 44, 2),
    Sketcher.Constraint("Horizontal", 37, 2, 45, 2),
    Sketcher.Constraint("Horizontal", 41, 2, 48, 2),
    Sketcher.Constraint("Horizontal", 43, 2, 49, 2),
    Sketcher.Constraint("Equal", 6, 15),
    Sketcher.Constraint("Radius", 1, Q("3.8 mm")),
    Sketcher.Constraint("DistanceX", -1, 1, 3, 1, Q("25 mm")),
    Sketcher.Constraint("Radius", 3, Q("2.3 mm")),
    Sketcher.Constraint("DistanceX", -1, 1, 7, 3, Q("7.97 mm")),
    Sketcher.Constraint("DistanceY", -1, 1, 0, 2, Q("14 mm")),
    Sketcher.Constraint("DistanceX", -1, 1, 3, 3, Q("23.2 mm")),
    Sketcher.Constraint("DistanceX", 6, 2, 6, 1, Q("1.435 mm")),
])
pad3 = body.newObject("PartDesign::Pad", "Pad002")
pad3.Profile = sketch3
pad3.Length = 4
pad3.Midplane = True

doc.recompute()
